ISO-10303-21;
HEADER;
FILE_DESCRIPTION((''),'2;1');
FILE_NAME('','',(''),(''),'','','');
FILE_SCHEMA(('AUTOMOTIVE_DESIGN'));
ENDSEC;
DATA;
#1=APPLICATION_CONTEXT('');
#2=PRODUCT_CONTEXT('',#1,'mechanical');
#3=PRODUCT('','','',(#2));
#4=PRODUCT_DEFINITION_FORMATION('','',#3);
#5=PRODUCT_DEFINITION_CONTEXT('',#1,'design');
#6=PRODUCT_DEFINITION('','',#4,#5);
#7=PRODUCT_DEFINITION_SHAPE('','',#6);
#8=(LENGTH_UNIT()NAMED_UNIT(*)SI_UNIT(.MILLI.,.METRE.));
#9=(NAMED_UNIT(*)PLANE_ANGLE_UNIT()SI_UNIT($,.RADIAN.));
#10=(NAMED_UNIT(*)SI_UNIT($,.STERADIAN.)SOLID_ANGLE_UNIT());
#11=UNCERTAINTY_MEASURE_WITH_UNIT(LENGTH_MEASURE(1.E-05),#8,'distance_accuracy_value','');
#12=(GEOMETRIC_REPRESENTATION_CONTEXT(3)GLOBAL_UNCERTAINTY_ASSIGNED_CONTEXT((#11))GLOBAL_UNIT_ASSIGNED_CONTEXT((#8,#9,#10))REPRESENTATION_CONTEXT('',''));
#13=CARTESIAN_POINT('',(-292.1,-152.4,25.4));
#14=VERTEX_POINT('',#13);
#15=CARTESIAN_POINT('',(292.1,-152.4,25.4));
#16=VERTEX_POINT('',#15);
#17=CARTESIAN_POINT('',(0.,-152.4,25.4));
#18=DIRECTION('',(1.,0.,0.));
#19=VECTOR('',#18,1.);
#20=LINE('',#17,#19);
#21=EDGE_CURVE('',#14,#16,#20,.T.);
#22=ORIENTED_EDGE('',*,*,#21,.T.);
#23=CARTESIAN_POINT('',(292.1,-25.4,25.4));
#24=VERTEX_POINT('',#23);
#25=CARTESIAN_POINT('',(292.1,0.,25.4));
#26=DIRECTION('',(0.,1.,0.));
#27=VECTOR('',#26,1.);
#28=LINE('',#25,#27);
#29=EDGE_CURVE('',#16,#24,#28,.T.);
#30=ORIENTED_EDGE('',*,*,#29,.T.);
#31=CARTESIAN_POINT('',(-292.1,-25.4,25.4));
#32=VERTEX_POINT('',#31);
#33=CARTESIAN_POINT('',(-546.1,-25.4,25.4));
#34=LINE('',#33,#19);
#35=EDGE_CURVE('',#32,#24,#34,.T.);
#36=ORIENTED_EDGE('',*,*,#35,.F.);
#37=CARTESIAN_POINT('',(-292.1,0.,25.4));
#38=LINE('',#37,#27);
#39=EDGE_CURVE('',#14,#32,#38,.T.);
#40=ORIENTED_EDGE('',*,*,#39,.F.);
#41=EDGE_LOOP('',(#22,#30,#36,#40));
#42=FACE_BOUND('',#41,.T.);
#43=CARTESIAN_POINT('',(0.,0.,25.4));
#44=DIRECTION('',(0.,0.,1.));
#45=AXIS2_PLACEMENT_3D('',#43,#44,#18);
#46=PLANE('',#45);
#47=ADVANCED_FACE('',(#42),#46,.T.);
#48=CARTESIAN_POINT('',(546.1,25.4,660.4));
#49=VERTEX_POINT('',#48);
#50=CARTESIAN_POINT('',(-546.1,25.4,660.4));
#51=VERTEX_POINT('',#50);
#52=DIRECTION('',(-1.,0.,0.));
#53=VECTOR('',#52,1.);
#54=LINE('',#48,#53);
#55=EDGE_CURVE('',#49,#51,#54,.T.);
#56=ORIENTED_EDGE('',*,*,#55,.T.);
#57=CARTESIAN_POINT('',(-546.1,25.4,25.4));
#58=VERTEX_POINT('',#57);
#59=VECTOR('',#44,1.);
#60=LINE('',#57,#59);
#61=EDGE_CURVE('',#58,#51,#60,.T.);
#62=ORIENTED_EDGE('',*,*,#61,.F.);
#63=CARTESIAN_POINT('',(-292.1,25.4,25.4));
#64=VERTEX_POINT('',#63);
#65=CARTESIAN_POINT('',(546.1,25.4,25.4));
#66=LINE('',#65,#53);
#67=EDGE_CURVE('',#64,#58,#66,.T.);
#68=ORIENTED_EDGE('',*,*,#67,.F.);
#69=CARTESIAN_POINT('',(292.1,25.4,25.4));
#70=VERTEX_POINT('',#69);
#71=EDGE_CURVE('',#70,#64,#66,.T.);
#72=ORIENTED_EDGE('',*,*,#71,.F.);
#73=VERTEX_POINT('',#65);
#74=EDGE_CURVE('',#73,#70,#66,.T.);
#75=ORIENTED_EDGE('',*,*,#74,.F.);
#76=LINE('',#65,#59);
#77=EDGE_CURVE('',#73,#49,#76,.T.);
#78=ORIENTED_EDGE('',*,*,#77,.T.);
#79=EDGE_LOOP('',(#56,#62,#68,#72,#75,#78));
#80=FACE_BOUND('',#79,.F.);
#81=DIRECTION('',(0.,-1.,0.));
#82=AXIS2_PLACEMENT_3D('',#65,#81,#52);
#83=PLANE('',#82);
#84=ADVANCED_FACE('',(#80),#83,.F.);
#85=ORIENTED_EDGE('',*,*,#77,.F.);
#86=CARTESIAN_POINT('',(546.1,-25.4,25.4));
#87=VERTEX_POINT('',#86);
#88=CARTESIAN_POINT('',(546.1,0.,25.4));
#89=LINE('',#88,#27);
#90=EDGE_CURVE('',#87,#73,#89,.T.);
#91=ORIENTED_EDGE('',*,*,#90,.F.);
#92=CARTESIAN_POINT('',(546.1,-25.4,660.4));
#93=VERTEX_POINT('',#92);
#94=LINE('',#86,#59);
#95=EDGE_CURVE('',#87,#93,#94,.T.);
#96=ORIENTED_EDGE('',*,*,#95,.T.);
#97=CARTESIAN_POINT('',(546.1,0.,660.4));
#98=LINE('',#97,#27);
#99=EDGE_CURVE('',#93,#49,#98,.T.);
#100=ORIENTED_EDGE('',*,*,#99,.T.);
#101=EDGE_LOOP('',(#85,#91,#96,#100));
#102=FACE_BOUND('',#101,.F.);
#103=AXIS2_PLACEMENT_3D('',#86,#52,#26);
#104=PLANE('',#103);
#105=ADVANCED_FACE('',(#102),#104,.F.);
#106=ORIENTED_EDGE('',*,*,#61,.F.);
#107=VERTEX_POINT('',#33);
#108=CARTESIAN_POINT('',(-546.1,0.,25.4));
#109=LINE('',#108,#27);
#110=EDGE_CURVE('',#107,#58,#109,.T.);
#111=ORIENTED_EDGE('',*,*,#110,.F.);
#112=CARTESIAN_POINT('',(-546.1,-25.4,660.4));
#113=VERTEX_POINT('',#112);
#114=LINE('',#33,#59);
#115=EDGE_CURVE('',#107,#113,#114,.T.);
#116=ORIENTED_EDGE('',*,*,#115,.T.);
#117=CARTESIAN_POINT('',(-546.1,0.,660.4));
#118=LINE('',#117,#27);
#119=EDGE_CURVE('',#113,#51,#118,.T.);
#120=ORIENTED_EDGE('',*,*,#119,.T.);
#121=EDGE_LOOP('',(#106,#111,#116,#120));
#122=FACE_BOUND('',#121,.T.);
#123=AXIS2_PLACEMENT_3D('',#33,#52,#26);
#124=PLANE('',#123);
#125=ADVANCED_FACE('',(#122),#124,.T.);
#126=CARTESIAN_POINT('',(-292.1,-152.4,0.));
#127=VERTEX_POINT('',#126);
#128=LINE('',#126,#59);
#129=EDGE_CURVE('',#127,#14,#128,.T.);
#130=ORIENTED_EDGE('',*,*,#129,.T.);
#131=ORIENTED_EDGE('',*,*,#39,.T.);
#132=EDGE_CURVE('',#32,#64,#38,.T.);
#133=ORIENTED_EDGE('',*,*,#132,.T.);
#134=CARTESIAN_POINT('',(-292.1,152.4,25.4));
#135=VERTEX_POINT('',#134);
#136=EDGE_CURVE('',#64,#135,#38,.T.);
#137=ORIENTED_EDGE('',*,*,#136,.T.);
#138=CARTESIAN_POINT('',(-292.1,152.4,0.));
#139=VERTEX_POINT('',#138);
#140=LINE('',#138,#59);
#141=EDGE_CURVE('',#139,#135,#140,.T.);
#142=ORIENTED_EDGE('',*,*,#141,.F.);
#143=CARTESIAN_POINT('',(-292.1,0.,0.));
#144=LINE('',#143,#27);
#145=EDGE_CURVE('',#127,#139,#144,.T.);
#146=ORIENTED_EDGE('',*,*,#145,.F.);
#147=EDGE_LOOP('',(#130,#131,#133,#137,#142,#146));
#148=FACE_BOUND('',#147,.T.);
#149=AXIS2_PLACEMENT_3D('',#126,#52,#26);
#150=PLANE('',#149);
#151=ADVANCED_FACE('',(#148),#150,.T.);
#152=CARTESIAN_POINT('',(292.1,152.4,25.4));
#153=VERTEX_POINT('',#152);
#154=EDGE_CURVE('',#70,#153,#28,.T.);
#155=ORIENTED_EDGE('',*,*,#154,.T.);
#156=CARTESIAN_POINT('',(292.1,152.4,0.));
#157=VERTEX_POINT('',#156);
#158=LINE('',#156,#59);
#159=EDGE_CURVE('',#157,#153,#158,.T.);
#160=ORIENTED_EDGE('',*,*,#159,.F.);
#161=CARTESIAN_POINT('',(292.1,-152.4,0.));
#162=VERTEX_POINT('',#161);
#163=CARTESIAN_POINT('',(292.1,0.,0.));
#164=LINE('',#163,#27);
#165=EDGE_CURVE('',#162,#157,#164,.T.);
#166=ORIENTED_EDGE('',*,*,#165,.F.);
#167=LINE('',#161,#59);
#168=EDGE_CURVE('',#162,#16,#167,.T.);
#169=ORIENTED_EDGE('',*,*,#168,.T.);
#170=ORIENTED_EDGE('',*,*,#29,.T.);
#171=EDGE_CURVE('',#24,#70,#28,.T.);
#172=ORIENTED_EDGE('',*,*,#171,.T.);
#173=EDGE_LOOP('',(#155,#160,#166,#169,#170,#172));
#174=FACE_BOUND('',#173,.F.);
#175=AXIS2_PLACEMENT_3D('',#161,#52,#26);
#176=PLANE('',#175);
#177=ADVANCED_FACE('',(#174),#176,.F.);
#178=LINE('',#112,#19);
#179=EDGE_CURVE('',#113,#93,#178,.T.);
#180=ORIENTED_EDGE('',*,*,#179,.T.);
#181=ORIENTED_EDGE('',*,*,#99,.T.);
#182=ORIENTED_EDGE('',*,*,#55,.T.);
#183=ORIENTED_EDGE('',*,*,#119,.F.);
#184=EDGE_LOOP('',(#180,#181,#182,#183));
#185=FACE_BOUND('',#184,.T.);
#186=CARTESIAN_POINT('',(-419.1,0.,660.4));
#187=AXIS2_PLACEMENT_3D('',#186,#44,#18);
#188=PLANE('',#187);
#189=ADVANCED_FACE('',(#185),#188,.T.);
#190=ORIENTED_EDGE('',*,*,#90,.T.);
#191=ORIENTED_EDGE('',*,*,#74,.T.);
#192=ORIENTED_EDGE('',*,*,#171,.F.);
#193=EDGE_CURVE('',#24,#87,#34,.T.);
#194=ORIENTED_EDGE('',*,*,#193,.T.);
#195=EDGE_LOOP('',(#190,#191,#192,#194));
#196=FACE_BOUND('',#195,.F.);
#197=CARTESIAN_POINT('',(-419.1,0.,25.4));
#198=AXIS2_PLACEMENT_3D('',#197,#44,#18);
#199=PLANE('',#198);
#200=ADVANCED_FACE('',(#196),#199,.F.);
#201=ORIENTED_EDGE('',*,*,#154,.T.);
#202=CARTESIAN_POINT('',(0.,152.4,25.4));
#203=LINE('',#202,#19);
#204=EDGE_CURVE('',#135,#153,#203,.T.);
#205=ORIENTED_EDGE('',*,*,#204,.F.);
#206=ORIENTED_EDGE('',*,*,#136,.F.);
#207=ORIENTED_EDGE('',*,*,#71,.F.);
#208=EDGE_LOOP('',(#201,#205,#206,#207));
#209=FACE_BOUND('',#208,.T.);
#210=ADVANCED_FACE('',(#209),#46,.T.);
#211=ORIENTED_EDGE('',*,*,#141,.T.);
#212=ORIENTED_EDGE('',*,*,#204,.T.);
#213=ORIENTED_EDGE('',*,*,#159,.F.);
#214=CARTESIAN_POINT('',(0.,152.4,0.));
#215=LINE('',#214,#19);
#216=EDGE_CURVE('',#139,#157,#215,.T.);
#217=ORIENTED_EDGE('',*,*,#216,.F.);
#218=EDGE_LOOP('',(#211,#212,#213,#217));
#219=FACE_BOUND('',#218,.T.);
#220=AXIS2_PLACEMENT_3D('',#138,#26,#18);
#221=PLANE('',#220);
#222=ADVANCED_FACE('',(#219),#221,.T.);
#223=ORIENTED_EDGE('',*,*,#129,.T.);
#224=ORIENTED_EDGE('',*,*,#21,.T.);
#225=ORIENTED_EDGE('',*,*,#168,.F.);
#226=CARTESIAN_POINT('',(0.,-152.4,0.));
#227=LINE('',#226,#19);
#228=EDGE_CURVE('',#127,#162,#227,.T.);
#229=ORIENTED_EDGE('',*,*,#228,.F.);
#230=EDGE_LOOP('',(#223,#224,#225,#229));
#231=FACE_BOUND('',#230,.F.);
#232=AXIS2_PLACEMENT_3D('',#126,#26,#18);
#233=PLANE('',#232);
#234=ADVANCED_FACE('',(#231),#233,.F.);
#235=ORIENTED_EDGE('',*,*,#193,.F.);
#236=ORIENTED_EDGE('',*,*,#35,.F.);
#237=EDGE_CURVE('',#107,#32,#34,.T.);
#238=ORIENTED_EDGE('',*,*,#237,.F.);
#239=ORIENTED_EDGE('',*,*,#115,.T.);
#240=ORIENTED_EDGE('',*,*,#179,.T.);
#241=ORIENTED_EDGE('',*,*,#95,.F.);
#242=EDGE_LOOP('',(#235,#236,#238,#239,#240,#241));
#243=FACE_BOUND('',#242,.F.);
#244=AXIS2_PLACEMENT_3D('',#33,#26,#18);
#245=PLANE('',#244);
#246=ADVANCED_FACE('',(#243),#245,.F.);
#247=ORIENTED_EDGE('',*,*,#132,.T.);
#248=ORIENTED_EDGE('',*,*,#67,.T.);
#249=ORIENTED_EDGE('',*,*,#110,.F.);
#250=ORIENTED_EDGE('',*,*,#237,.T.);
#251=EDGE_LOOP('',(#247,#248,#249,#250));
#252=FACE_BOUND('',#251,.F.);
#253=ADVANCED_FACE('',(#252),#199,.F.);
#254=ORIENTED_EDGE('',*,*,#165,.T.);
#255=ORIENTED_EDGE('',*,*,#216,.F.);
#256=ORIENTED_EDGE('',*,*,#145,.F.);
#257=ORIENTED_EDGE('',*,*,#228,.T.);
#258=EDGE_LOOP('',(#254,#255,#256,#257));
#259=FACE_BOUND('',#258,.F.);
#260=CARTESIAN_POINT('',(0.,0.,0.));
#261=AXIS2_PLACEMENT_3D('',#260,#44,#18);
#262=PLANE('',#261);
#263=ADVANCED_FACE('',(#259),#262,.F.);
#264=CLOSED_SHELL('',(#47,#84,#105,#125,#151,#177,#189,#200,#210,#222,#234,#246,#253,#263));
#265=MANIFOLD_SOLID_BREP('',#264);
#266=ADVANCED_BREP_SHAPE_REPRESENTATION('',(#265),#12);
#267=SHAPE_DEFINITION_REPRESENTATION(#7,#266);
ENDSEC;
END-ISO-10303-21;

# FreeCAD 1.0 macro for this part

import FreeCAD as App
import Part
import Sketcher
Q = App.Units.Quantity

doc = App.newDocument("Part")
body = doc.addObject("PartDesign::Body", "Body")

# Sketch on XY plane
sketch1 = body.newObject("Sketcher::SketchObject", "Sketch")
sketch1.AttachmentSupport = (doc.getObject("XY_Plane"), [""])
sketch1.MapMode = "FlatFace"
sketch1.addGeometry([
    Part.LineSegment(App.Vector(-292, 152, 0), App.Vector(-292, -152, 0)),
    Part.LineSegment(App.Vector(-292, -152, 0), App.Vector(292, -152, 0)),
    Part.LineSegment(App.Vector(292, -152, 0), App.Vector(292, 152, 0)),
    Part.LineSegment(App.Vector(292, 152, 0), App.Vector(-292, 152, 0)),
], False)
sketch1.addConstraint([
    Sketcher.Constraint("Coincident", 0, 2, 1, 1),
    Sketcher.Constraint("Coincident", 1, 2, 2, 1),
    Sketcher.Constraint("Coincident", 2, 2, 3, 1),
    Sketcher.Constraint("Coincident", 3, 2, 0, 1),
    Sketcher.Constraint("Vertical", 0),
    Sketcher.Constraint("Horizontal", 1),
    Sketcher.Constraint("Vertical", 2),
    Sketcher.Constraint("Horizontal", 3),
    Sketcher.Constraint("Symmetric", 0, 2, 2, 2, -1, 1),
    Sketcher.Constraint("DistanceX", 1, 1, 1, 2, Q("23 in")),
    Sketcher.Constraint("DistanceY", 0, 2, 0, 1, Q("12 in")),
])
pad1 = body.newObject("PartDesign::Pad", "Pad")
pad1.Profile = sketch1
pad1.Length = Q("1 in")

# Sketch on XY plane
sketch2 = body.newObject("Sketcher::SketchObject", "Sketch001")
sketch2.AttachmentSupport = (doc.getObject("XY_Plane"), [""])
sketch2.MapMode = "FlatFace"
sketch2.AttachmentOffset = App.Placement(App.Vector(0, 0, 1 * 25.4), App.Rotation())
sketch2.addGeometry([
    Part.LineSegment(App.Vector(-546, 25, 0), App.Vector(-546, -25, 0)),
    Part.LineSegment(App.Vector(-546, -25, 0), App.Vector(546, -25, 0)),
    Part.LineSegment(App.Vector(546, -25, 0), App.Vector(546, 25, 0)),
    Part.LineSegment(App.Vector(546, 25, 0), App.Vector(-546, 25, 0)),
], False)
sketch2.addConstraint([
    Sketcher.Constraint("Coincident", 0, 2, 1, 1),
    Sketcher.Constraint("Coincident", 1, 2, 2, 1),
    Sketcher.Constraint("Coincident", 2, 2, 3, 1),
    Sketcher.Constraint("Coincident", 3, 2, 0, 1),
    Sketcher.Constraint("Vertical", 0),
    Sketcher.Constraint("Horizontal", 1),
    Sketcher.Constraint("Vertical", 2),
    Sketcher.Constraint("Horizontal", 3),
    Sketcher.Constraint("Symmetric", 0, 2, 2, 2, -1, 1),
    Sketcher.Constraint("DistanceX", 1, 1, 1, 2, Q("43 in")),
    Sketcher.Constraint("DistanceY", 0, 2, 0, 1, Q("2 in")),
])
pad2 = body.newObject("PartDesign::Pad", "Pad001")
pad2.Profile = sketch2
pad2.Length = Q("25 in")

doc.recompute()
